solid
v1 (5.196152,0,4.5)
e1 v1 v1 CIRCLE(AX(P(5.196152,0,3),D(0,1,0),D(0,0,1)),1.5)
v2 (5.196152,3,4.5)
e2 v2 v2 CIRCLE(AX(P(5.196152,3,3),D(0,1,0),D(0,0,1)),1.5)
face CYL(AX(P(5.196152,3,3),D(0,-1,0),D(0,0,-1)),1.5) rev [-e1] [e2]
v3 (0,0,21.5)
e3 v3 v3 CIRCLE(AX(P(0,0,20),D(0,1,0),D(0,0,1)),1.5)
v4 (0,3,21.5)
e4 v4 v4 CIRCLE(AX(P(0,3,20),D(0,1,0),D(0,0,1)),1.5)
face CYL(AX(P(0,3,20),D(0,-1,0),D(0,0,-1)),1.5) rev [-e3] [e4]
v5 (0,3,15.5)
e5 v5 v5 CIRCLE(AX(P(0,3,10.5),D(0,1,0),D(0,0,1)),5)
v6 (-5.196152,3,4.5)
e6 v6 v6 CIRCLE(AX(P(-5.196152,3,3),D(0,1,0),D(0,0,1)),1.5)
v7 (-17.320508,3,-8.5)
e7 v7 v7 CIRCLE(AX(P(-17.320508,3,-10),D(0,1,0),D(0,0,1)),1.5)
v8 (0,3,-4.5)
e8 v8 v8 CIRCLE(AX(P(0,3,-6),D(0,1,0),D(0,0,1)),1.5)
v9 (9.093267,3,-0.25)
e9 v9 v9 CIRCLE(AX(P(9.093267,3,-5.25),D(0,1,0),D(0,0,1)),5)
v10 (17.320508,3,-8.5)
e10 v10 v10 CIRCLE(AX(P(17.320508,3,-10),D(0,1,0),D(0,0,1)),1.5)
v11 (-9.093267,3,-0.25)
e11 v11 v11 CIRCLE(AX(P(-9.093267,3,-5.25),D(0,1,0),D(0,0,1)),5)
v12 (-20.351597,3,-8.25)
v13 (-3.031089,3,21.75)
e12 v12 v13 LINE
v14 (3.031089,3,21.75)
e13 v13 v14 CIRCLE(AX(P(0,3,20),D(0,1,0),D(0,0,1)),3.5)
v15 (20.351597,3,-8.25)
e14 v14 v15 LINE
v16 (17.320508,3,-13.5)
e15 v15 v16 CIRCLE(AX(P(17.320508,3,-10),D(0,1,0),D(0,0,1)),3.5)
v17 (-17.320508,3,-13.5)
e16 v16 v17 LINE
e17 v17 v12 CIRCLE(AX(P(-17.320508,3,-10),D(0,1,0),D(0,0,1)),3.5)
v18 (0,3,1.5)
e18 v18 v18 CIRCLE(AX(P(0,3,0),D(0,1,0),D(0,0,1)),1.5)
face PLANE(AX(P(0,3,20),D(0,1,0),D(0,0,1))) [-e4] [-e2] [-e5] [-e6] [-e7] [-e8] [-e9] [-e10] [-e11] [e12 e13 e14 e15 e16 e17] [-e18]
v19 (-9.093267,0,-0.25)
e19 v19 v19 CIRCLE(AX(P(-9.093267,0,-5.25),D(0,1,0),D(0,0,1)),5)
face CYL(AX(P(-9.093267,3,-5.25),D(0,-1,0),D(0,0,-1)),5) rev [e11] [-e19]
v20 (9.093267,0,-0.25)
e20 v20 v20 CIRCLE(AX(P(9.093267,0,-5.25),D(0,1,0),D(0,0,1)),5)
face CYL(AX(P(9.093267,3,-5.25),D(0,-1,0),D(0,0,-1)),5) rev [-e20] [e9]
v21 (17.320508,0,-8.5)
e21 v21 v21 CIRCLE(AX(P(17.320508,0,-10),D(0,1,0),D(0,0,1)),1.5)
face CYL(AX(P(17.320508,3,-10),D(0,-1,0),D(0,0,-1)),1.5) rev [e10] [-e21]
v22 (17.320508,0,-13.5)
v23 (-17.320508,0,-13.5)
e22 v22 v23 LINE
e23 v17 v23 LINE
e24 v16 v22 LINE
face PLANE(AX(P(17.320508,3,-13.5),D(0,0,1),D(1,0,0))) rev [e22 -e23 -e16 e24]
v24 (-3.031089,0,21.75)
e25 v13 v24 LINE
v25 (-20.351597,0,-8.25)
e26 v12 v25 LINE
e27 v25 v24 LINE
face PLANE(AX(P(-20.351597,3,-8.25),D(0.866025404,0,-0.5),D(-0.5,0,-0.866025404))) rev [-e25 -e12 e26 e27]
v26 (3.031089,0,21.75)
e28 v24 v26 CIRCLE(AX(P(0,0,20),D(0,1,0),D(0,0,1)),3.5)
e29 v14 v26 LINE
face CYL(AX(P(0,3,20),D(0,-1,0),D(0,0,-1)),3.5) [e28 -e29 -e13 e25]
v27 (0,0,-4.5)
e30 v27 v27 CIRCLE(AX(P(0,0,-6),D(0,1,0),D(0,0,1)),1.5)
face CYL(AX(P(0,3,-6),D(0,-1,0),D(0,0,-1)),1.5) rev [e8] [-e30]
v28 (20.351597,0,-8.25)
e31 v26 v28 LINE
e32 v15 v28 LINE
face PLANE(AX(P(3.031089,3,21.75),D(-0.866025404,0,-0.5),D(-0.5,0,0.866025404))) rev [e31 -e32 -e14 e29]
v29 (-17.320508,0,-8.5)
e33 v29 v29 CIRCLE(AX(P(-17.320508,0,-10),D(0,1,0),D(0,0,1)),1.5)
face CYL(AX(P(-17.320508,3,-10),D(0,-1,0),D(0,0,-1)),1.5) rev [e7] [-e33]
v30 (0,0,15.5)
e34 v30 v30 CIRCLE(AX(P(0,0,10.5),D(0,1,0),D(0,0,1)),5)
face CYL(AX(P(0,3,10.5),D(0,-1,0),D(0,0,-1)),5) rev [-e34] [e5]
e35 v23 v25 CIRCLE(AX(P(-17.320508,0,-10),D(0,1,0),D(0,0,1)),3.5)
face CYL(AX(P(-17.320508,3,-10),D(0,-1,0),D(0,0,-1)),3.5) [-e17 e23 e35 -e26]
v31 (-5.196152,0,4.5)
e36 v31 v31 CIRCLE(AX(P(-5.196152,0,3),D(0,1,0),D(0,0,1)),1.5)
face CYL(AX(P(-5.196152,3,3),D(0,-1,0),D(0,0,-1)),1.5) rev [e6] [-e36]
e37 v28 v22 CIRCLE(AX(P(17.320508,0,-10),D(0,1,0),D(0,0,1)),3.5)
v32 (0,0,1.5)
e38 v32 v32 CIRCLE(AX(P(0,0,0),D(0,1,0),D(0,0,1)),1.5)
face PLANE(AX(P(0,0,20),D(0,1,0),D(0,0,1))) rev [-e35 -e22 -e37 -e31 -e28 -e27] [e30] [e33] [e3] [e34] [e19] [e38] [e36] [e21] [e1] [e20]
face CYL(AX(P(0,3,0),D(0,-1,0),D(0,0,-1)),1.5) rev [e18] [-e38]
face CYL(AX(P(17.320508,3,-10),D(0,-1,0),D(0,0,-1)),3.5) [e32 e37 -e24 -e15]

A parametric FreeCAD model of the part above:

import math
import FreeCAD as App
import Part
import Sketcher
Q = App.Units.Quantity

doc = App.newDocument("Part")
body = doc.addObject("PartDesign::Body", "Body")

sketch1 = body.newObject("Sketcher::SketchObject", "Sketch")
sketch1.AttachmentSupport = (doc.getObject("XZ_Plane"), [""])
sketch1.MapMode = "FlatFace"
sketch1.addGeometry(Part.LineSegment(App.Vector(3, 21.8, 0), App.Vector(20.4, -8.2, 0)), False)
sketch1.addGeometry(Part.ArcOfCircle(Part.Circle(App.Vector(17.3, -10, 0), App.Vector(0, 0, 1), 3.5), math.radians(-90), math.radians(30)), False)
sketch1.addGeometry(Part.LineSegment(App.Vector(17.3, -13.5, 0), App.Vector(-17.3, -13.5, 0)), False)
sketch1.addGeometry(Part.ArcOfCircle(Part.Circle(App.Vector(-17.3, -10, 0), App.Vector(0, 0, 1), 3.5), math.radians(150), math.radians(270)), False)
sketch1.addGeometry(Part.LineSegment(App.Vector(-20.4, -8.2, 0), App.Vector(-3, 21.8, 0)), False)
sketch1.addGeometry(Part.ArcOfCircle(Part.Circle(App.Vector(0, 20, 0), App.Vector(0, 0, 1), 3.5), math.radians(30), math.radians(150)), False)
sketch1.addGeometry(Part.Circle(App.Vector(17.3, -10, 0), App.Vector(0, 0, 1), 1.5), False)
sketch1.addGeometry(Part.Circle(App.Vector(9.1, -5.2, 0), App.Vector(0, 0, 1), 5), False)
sketch1.addGeometry(Part.Circle(App.Vector(5.2, 3, 0), App.Vector(0, 0, 1), 1.5), False)
sketch1.addGeometry(Part.Circle(App.Vector(0, -6, 0), App.Vector(0, 0, 1), 1.5), False)
sketch1.addGeometry(Part.Circle(App.Vector(-9.1, -5.2, 0), App.Vector(0, 0, 1), 5), False)
sketch1.addGeometry(Part.Circle(App.Vector(-17.3, -10, 0), App.Vector(0, 0, 1), 1.5), False)
sketch1.addGeometry(Part.Circle(App.Vector(0, 0, 0), App.Vector(0, 0, 1), 1.5), False)
sketch1.addGeometry(Part.Circle(App.Vector(-5.2, 3, 0), App.Vector(0, 0, 1), 1.5), False)
sketch1.addGeometry(Part.Circle(App.Vector(0, 10.5, 0), App.Vector(0, 0, 1), 5), False)
sketch1.addGeometry(Part.Circle(App.Vector(0, 20, 0), App.Vector(0, 0, 1), 1.5), False)
sketch1.addConstraint(Sketcher.Constraint("Tangent", 0, 2, 1, 2))
sketch1.addConstraint(Sketcher.Constraint("Tangent", 1, 1, 2, 1))
sketch1.addConstraint(Sketcher.Constraint("Tangent", 2, 2, 3, 2))
sketch1.addConstraint(Sketcher.Constraint("Tangent", 3, 1, 4, 1))
sketch1.addConstraint(Sketcher.Constraint("Tangent", 4, 2, 5, 2))
sketch1.addConstraint(Sketcher.Constraint("Tangent", 5, 1, 0, 1))
sketch1.addConstraint(Sketcher.Constraint("Horizontal", 2))
sketch1.addConstraint(Sketcher.Constraint("Coincident", 12, 3, -1, 1))
sketch1.addConstraint(Sketcher.Constraint("Coincident", 6, 3, 1, 3))
sketch1.addConstraint(Sketcher.Constraint("Coincident", 11, 3, 3, 3))
sketch1.addConstraint(Sketcher.Constraint("Coincident", 15, 3, 5, 3))
sketch1.addConstraint(Sketcher.Constraint("Equal", 1, 3))
sketch1.addConstraint(Sketcher.Constraint("Equal", 3, 5))
sketch1.addConstraint(Sketcher.Constraint("Equal", 6, 8))
sketch1.addConstraint(Sketcher.Constraint("Equal", 8, 9))
sketch1.addConstraint(Sketcher.Constraint("Equal", 7, 10))
sketch1.addConstraint(Sketcher.Constraint("Equal", 9, 11))
sketch1.addConstraint(Sketcher.Constraint("Equal", 11, 12))
sketch1.addConstraint(Sketcher.Constraint("Equal", 12, 13))
sketch1.addConstraint(Sketcher.Constraint("Equal", 10, 14))
sketch1.addConstraint(Sketcher.Constraint("Equal", 13, 15))
sketch1.addConstraint(Sketcher.Constraint("Symmetric", 7, 3, 10, 3, -2))
sketch1.addConstraint(Sketcher.Constraint("Symmetric", 8, 3, 13, 3, -2))
sketch1.addConstraint(Sketcher.Constraint("Symmetric", 0, 2, 3, 1, -2))
sketch1.addConstraint(Sketcher.Constraint("PointOnObject", 9, 3, -2))
sketch1.addConstraint(Sketcher.Constraint("PointOnObject", 14, 3, -2))
sketch1.addConstraint(Sketcher.Constraint("Diameter", 6, Q("3 mm")))
sketch1.addConstraint(Sketcher.Constraint("Diameter", 7, Q("10 mm")))
sketch1.addConstraint(Sketcher.Constraint("Radius", 1, Q("3.5 mm")))
sketch1.addConstraint(Sketcher.Constraint("Angle", 0, Q("-60 deg")))
sketch1.addConstraint(Sketcher.Constraint("DistanceY", 1, 3, -1, 1, Q("10 mm")))
sketch1.addConstraint(Sketcher.Constraint("DistanceY", -1, 1, 5, 3, Q("20 mm")))
sketch1.addConstraint(Sketcher.Constraint("DistanceY", -1, 1, 8, 3, Q("3 mm")))
sketch1.addConstraint(Sketcher.Constraint("DistanceY", 9, 3, -1, 1, Q("6 mm")))
sketch1.addConstraint(Sketcher.Constraint("DistanceY", 0, 2, 7, 3, Q("3 mm")))
sketch1.addConstraint(Sketcher.Constraint("DistanceY", -1, 1, 14, 3, Q("10.5 mm")))
sketch1.addConstraint(Sketcher.Constraint("DistanceX", 7, 3, 1, 3, Q("8.227241 mm")))
sketch1.addConstraint(Sketcher.Constraint("DistanceX", 3, 3, 8, 3, Q("22.51666 mm")))
pad1 = body.newObject("PartDesign::Pad", "Pad")
pad1.Profile = sketch1
pad1.Length = 3
pad1.Reversed = True

doc.recompute()
